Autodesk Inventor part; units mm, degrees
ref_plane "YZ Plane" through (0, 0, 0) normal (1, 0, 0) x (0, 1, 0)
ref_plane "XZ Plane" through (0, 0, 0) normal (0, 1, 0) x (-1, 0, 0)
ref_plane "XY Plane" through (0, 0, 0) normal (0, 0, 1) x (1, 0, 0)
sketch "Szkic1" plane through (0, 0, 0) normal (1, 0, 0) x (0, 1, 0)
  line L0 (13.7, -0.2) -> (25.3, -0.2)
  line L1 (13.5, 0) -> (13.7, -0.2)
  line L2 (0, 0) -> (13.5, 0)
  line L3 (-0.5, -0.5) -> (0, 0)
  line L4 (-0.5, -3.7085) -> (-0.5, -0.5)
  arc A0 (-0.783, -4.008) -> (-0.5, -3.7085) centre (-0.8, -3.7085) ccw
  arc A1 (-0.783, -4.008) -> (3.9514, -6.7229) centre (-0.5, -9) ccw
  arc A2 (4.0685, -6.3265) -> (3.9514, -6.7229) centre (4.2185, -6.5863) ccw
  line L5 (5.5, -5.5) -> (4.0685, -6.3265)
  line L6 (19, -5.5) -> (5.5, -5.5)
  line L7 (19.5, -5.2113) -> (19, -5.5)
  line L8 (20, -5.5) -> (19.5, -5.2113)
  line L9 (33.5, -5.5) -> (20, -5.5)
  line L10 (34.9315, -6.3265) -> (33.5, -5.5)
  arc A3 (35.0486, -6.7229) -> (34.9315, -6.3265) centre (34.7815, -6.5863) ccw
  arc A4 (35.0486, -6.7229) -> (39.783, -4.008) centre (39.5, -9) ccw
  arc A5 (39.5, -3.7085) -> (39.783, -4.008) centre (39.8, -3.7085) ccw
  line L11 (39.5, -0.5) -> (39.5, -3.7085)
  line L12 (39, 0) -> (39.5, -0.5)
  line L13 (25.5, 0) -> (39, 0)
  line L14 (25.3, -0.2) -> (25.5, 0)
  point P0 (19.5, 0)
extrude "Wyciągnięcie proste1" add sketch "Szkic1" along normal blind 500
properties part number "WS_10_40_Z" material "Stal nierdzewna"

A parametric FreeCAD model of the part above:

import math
import FreeCAD as App
import Part
import Sketcher
Q = App.Units.Quantity

doc = App.newDocument("Part")
body = doc.addObject("PartDesign::Body", "Body")

# Sketch on YZ plane
sketch1 = body.newObject("Sketcher::SketchObject", "Sketch")
sketch1.AttachmentSupport = (doc.getObject("YZ_Plane"), [""])
sketch1.MapMode = "FlatFace"
sketch1.addGeometry([
    Part.LineSegment(App.Vector(25.3, -0.2, 0), App.Vector(13.7, -0.2, 0)),  # 0
    Part.LineSegment(App.Vector(13.7, -0.2, 0), App.Vector(13.5, 0, 0)),  # 1
    Part.LineSegment(App.Vector(13.5, 0, 0), App.Vector(0, 0, 0)),  # 2
    Part.LineSegment(App.Vector(0, 0, 0), App.Vector(-0.5, -0.5, 0)),  # 3
    Part.LineSegment(App.Vector(-0.5, -0.5, 0), App.Vector(-0.5, -3.7085, 0)),  # 4
    Part.ArcOfCircle(Part.Circle(App.Vector(-0.8, -3.7085, 0), App.Vector(0, 0, 1), 0.299982), math.radians(-86.751305), math.radians(0)),  # 5
    Part.ArcOfCircle(Part.Circle(App.Vector(-0.5, -9, 0), App.Vector(0, 0, 1), 5.000015), math.radians(93.244665), math.radians(387.091875)),  # 6
    Part.ArcOfCircle(Part.Circle(App.Vector(4.2185, -6.5863, 0), App.Vector(0, 0, 1), 0.299993), math.radians(120.000728), math.radians(207.086063)),  # 7
    Part.LineSegment(App.Vector(4.0685, -6.3265, 0), App.Vector(5.5, -5.5, 0)),  # 8
    Part.LineSegment(App.Vector(5.5, -5.5, 0), App.Vector(19, -5.5, 0)),  # 9
    Part.LineSegment(App.Vector(19, -5.5, 0), App.Vector(19.5, -5.2113, 0)),  # 10
    Part.LineSegment(App.Vector(19.5, -5.2113, 0), App.Vector(20, -5.5, 0)),  # 11
    Part.LineSegment(App.Vector(20, -5.5, 0), App.Vector(33.5, -5.5, 0)),  # 12
    Part.LineSegment(App.Vector(33.5, -5.5, 0), App.Vector(34.9315, -6.3265, 0)),  # 13
    Part.ArcOfCircle(Part.Circle(App.Vector(34.7815, -6.5863, 0), App.Vector(0, 0, 1), 0.300003), math.radians(-27.086063), math.radians(59.999272)),  # 14
    Part.ArcOfCircle(Part.Circle(App.Vector(39.5, -9, 0), App.Vector(0, 0, 1), 5.000015), math.radians(152.908125), math.radians(446.755335)),  # 15
    Part.ArcOfCircle(Part.Circle(App.Vector(39.8, -3.7085, 0), App.Vector(0, 0, 1), 0.3), math.radians(180), math.radians(266.751305)),  # 16
    Part.LineSegment(App.Vector(39.5, -3.7085, 0), App.Vector(39.5, -0.5, 0)),  # 17
    Part.LineSegment(App.Vector(39.5, -0.5, 0), App.Vector(39, 0, 0)),  # 18
    Part.LineSegment(App.Vector(39, 0, 0), App.Vector(25.5, 0, 0)),  # 19
    Part.LineSegment(App.Vector(25.5, 0, 0), App.Vector(25.3, -0.2, 0)),  # 20
], False)
sketch1.addConstraint([
    Sketcher.Constraint("Coincident", 0, 2, 1, 1),
    Sketcher.Constraint("Coincident", 1, 2, 2, 1),
    Sketcher.Constraint("Coincident", 2, 2, 3, 1),
    Sketcher.Constraint("Coincident", 3, 2, 4, 1),
    Sketcher.Constraint("Tangent", 4, 2, 5, 2),
    Sketcher.Constraint("Tangent", 5, 1, 6, 1),
    Sketcher.Constraint("Tangent", 6, 2, 7, 2),
    Sketcher.Constraint("Tangent", 7, 1, 8, 1),
    Sketcher.Constraint("Coincident", 8, 2, 9, 1),
    Sketcher.Constraint("Coincident", 9, 2, 10, 1),
    Sketcher.Constraint("Coincident", 10, 2, 11, 1),
    Sketcher.Constraint("Coincident", 11, 2, 12, 1),
    Sketcher.Constraint("Coincident", 12, 2, 13, 1),
    Sketcher.Constraint("Tangent", 13, 2, 14, 2),
    Sketcher.Constraint("Tangent", 14, 1, 15, 1),
    Sketcher.Constraint("Tangent", 15, 2, 16, 2),
    Sketcher.Constraint("Tangent", 16, 1, 17, 1),
    Sketcher.Constraint("Coincident", 17, 2, 18, 1),
    Sketcher.Constraint("Coincident", 18, 2, 19, 1),
    Sketcher.Constraint("Coincident", 19, 2, 20, 1),
    Sketcher.Constraint("Coincident", 20, 2, 0, 1),
    Sketcher.Constraint("Horizontal", 0),
    Sketcher.Constraint("Horizontal", 2),
    Sketcher.Constraint("Vertical", 4),
    Sketcher.Constraint("Horizontal", 9),
    Sketcher.Constraint("Horizontal", 12),
    Sketcher.Constraint("Vertical", 17),
    Sketcher.Constraint("Horizontal", 19),
    Sketcher.Constraint("Coincident", 2, 2, -1, 1),
    Sketcher.Constraint("Equal", 5, 7),
    Sketcher.Constraint("Equal", 7, 14),
    Sketcher.Constraint("Equal", 6, 15),
    Sketcher.Constraint("Equal", 14, 16),
    Sketcher.Constraint("PointOnObject", 18, 2, -1),
    Sketcher.Constraint("Perpendicular", 1, 3),
    Sketcher.Constraint("Parallel", 8, 10),
    Sketcher.Constraint("Parallel", 11, 13),
    Sketcher.Constraint("Perpendicular", 3, 18),
    Sketcher.Constraint("Perpendicular", 18, 20),
    Sketcher.Constraint("Horizontal", 7, 3, 14, 3),
    Sketcher.Constraint("Horizontal", 6, 3, 15, 3),
    Sketcher.Constraint("Horizontal", 5, 3, 16, 3),
    Sketcher.Constraint("Horizontal", 9, 2, 11, 2),
    Sketcher.Constraint("Horizontal", 7, 1, 13, 2),
    Sketcher.Constraint("Horizontal", 3, 2, 17, 2),
    Sketcher.Constraint("Vertical", 6, 3, 3, 2),
    Sketcher.Constraint("Equal", 2, 9),
    Sketcher.Constraint("Equal", 9, 12),
    Sketcher.Constraint("Equal", 12, 19),
    Sketcher.Constraint("Equal", 3, 18),
    Sketcher.Constraint("Radius", 6, Q("5 mm")),
    Sketcher.Constraint("Radius", 5, Q("0.3 mm")),
    Sketcher.Constraint("Angle", 8, Q("30.0007 deg")),
    Sketcher.Constraint("DistanceX", 0, 2, 0, 1, Q("11.6 mm")),
    Sketcher.Constraint("DistanceX", 2, 2, 2, 1, Q("13.5 mm")),
    Sketcher.Constraint("DistanceY", 6, 3, -1, 1, Q("9 mm")),
    Sketcher.Constraint("DistanceX", -1, 1, 9, 2, Q("19 mm")),
    Sketcher.Constraint("DistanceX", -1, 1, 11, 2, Q("20 mm")),
    Sketcher.Constraint("DistanceX", 6, 3, 15, 3, Q("40 mm")),
    Sketcher.Constraint("DistanceY", 8, 2, -1, 1, Q("5.5 mm")),
])
pad1 = body.newObject("PartDesign::Pad", "Pad")
pad1.Profile = sketch1
pad1.Length = 500

doc.recompute()
